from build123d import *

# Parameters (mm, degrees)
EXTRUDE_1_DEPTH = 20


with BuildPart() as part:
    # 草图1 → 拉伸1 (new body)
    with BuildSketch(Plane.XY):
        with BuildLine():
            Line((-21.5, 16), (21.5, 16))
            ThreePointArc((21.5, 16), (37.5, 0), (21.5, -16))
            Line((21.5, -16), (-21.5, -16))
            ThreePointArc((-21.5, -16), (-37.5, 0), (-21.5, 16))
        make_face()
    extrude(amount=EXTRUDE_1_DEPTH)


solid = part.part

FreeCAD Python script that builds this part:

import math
import FreeCAD as App
import Part
import Sketcher
from FreeCAD import Vector
Q = App.Units.Quantity

doc = App.newDocument("Part")
body = doc.addObject("PartDesign::Body", "Body")

sketch1 = body.newObject("Sketcher::SketchObject", "Sketch")
sketch1.AttachmentSupport = (doc.getObject("XY_Plane"), [""])
sketch1.MapMode = "FlatFace"
sketch1.addGeometry([
    Part.LineSegment(Vector(22, 16, 0), Vector(-22, 16, 0)),
    Part.ArcOfCircle(Part.Circle(Vector(-22, 0, 0), Vector(0, 0, 1), 16), math.radians(90), math.radians(270)),
    Part.LineSegment(Vector(-22, -16, 0), Vector(22, -16, 0)),
    Part.ArcOfCircle(Part.Circle(Vector(22, 0, 0), Vector(0, 0, 1), 16), math.radians(-90), math.radians(90)),
], False)
sketch1.addConstraint([
    Sketcher.Constraint("Tangent", 0, 2, 1, 1),
    Sketcher.Constraint("Tangent", 1, 2, 2, 1),
    Sketcher.Constraint("Tangent", 2, 2, 3, 1),
    Sketcher.Constraint("Tangent", 3, 2, 0, 1),
    Sketcher.Constraint("Horizontal", 0),
    Sketcher.Constraint("Horizontal", 2),
    Sketcher.Constraint("Symmetric", 1, 3, 3, 3, -1, 1),
    Sketcher.Constraint("Radius", 1, Q("16 mm")),
    Sketcher.Constraint("DistanceX", 0, 2, 0, 1, Q("43 mm")),
])
pad1 = body.newObject("PartDesign::Pad", "Pad")
pad1.Profile = sketch1
pad1.Length = 20

doc.recompute()
